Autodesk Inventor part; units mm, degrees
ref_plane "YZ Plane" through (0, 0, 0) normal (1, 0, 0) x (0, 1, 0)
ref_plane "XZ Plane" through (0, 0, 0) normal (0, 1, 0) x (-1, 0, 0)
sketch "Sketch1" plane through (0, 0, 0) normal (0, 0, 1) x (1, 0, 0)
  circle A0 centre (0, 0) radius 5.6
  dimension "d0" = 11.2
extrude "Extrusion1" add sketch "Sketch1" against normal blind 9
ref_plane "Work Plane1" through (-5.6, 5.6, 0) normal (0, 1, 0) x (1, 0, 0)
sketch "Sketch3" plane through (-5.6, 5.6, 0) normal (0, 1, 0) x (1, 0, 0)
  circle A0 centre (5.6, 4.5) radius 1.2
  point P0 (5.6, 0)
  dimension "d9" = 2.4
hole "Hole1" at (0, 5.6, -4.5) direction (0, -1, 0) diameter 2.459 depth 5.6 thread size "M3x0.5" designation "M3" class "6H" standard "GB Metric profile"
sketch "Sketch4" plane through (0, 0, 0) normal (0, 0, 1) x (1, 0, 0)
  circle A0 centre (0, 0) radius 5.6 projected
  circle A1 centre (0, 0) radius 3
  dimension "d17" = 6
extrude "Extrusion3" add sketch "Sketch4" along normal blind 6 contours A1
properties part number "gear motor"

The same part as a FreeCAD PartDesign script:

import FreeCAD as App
import Part
import Sketcher
from FreeCAD import Vector

doc = App.newDocument("Part")
body = doc.addObject("PartDesign::Body", "Body")

# Sketch on XY plane
sketch1 = body.newObject("Sketcher::SketchObject", "Sketch")
sketch1.AttachmentSupport = (doc.getObject("XY_Plane"), [""])
sketch1.MapMode = "FlatFace"
sketch1.addGeometry(Part.Circle(Vector(0, 0, 0), Vector(0, 0, 1), 5.6), False)
sketch1.addConstraint([
    Sketcher.Constraint("Coincident", 0, 3, -1, 1),
    Sketcher.Constraint("Diameter", 0, 11.2),
])
pad1 = body.newObject("PartDesign::Pad", "Pad")
pad1.Profile = sketch1
pad1.Length = 9
pad1.Reversed = True

# Sketch on XZ plane
sketch2 = body.newObject("Sketcher::SketchObject", "Sketch001")
sketch2.AttachmentSupport = (doc.getObject("XZ_Plane"), [""])
sketch2.MapMode = "FlatFace"
sketch2.AttachmentOffset = App.Placement(Vector(0, 0, -5.6), App.Rotation())
sketch2.addGeometry(Part.Circle(Vector(0, -4.5, 0), Vector(0, 0, 1), 1.2295), False)
sketch2.addConstraint([
    Sketcher.Constraint("PointOnObject", 0, 3, -2),
    Sketcher.Constraint("Diameter", 0, 2.459),
    Sketcher.Constraint("DistanceY", 0, 3, -1, 1, 4.5),
])
doc.recompute()
hole = body.newObject("PartDesign::Hole", "Hole")
hole.Profile = sketch2
hole.ThreadType = "None"
hole.Diameter = 2.459
hole.DepthType = "Dimension"
hole.Depth = 5.6
hole.DrillPoint = "Flat"
hole.Reversed = True

# Sketch on XY plane
sketch3 = body.newObject("Sketcher::SketchObject", "Sketch002")
sketch3.AttachmentSupport = (doc.getObject("XY_Plane"), [""])
sketch3.MapMode = "FlatFace"
sketch3.addGeometry(Part.Circle(Vector(0, 0, 0), Vector(0, 0, 1), 3), False)
sketch3.addConstraint([
    Sketcher.Constraint("Coincident", 0, 3, -1, 1),
    Sketcher.Constraint("Diameter", 0, 6.0),
])
pad2 = body.newObject("PartDesign::Pad", "Pad001")
pad2.Profile = sketch3
pad2.Length = 6

doc.recompute()
